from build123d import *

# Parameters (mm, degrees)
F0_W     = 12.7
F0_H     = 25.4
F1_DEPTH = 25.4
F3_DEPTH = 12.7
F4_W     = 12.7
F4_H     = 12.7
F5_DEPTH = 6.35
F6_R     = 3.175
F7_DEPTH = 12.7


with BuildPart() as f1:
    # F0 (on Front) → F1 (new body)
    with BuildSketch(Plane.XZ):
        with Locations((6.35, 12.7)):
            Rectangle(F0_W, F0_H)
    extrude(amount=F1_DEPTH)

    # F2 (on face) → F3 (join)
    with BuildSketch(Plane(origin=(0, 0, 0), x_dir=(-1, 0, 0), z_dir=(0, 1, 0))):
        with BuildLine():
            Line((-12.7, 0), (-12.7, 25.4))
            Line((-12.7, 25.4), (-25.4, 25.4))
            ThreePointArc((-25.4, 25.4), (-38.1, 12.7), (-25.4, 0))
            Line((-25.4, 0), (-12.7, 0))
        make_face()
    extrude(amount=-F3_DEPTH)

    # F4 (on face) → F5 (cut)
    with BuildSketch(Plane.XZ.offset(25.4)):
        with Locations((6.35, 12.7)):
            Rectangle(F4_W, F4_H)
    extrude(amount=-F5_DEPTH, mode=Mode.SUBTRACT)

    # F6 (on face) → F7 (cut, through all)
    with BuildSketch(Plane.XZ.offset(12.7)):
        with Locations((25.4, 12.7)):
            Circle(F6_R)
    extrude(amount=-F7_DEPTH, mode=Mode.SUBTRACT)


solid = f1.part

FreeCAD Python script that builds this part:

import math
import FreeCAD as App
import Part
import Sketcher
from FreeCAD import Vector
Q = App.Units.Quantity

doc = App.newDocument("Part")
params = doc.addObject("Spreadsheet::Sheet", "Params")
for row, (alias, value) in enumerate([
    ("sketch1_height", "1 in"),
    ("sketch1_width", "0.5 in"),
    ("pad1_length", "1 in"),
    ("sketch2_radius", "0.5 in"),
    ("sketch2_width", "0.5 in"),
    ("pad2_length", "0.5 in"),
    ("sketch3_width", "0.5 in"),
    ("pocket1_length", "0.25 in"),
    ("sketch4_diameter", "0.25 in"),
], start=1):
    params.set(f"A{row}", alias)
    params.set(f"B{row}", "=" + value)
    params.setAlias(f"B{row}", alias)

body = doc.addObject("PartDesign::Body", "Body")

sketch1 = body.newObject("Sketcher::SketchObject", "Sketch")
sketch1.AttachmentSupport = (doc.getObject("XZ_Plane"), [""])
sketch1.MapMode = "FlatFace"
sketch1.addGeometry([
    Part.LineSegment(Vector(0, 25, 0), Vector(0, 0, 0)),
    Part.LineSegment(Vector(0, 0, 0), Vector(13, 0, 0)),
    Part.LineSegment(Vector(13, 0, 0), Vector(13, 25, 0)),
    Part.LineSegment(Vector(13, 25, 0), Vector(0, 25, 0)),
], False)
sketch1.addConstraint([
    Sketcher.Constraint("Coincident", 0, 2, 1, 1),
    Sketcher.Constraint("Coincident", 1, 2, 2, 1),
    Sketcher.Constraint("Coincident", 2, 2, 3, 1),
    Sketcher.Constraint("Coincident", 3, 2, 0, 1),
    Sketcher.Constraint("Vertical", 0),
    Sketcher.Constraint("Horizontal", 1),
    Sketcher.Constraint("Vertical", 2),
    Sketcher.Constraint("Horizontal", 3),
    Sketcher.Constraint("Coincident", 0, 2, -1, 1),
    Sketcher.Constraint("DistanceY", 0, 2, 0, 1, Q("1 in")),
    Sketcher.Constraint("DistanceX", 1, 1, 1, 2, Q("0.5 in")),
])
sketch1.setExpression("Constraints[9]", "Params.sketch1_height")
sketch1.setExpression("Constraints[10]", "Params.sketch1_width")
pad1 = body.newObject("PartDesign::Pad", "Pad")
pad1.Profile = sketch1
pad1.setExpression("Length", "Params.pad1_length")

sketch2 = body.newObject("Sketcher::SketchObject", "Sketch001")
sketch2.AttachmentSupport = (doc.getObject("XZ_Plane"), [""])
sketch2.MapMode = "FlatFace"
sketch2.addGeometry([
    Part.LineSegment(Vector(13, 0, 0), Vector(13, 25, 0)),
    Part.LineSegment(Vector(13, 25, 0), Vector(25, 25, 0)),
    Part.ArcOfCircle(Part.Circle(Vector(25, 13, 0), Vector(0, 0, 1), 13), math.radians(-90), math.radians(90)),
    Part.LineSegment(Vector(25, 0, 0), Vector(13, 0, 0)),
], False)
sketch2.addConstraint([
    Sketcher.Constraint("Coincident", 0, 2, 1, 1),
    Sketcher.Constraint("Tangent", 1, 2, 2, 2),
    Sketcher.Constraint("Tangent", 2, 1, 3, 1),
    Sketcher.Constraint("Coincident", 3, 2, 0, 1),
    Sketcher.Constraint("Vertical", 0),
    Sketcher.Constraint("Horizontal", 1),
    Sketcher.Constraint("Horizontal", 3),
    Sketcher.Constraint("PointOnObject", 2, 1, -1),
    Sketcher.Constraint("Radius", 2, Q("0.5 in")),
    Sketcher.Constraint("DistanceX", 1, 1, 1, 2, Q("0.5 in")),
    Sketcher.Constraint("DistanceX", -1, 1, 2, 3, Q("1 in")),
])
sketch2.setExpression("Constraints[8]", "Params.sketch2_radius")
sketch2.setExpression("Constraints[9]", "Params.sketch2_width")
pad2 = body.newObject("PartDesign::Pad", "Pad001")
pad2.Profile = sketch2
pad2.setExpression("Length", "Params.pad2_length")

sketch3 = body.newObject("Sketcher::SketchObject", "Sketch002")
sketch3.AttachmentSupport = (doc.getObject("XZ_Plane"), [""])
sketch3.MapMode = "FlatFace"
sketch3.AttachmentOffset = App.Placement(Vector(0, 0, 1 * 25.4), App.Rotation())
sketch3.addGeometry([
    Part.LineSegment(Vector(0, 19, 0), Vector(0, 6, 0)),
    Part.LineSegment(Vector(0, 6, 0), Vector(13, 6, 0)),
    Part.LineSegment(Vector(13, 6, 0), Vector(13, 19, 0)),
    Part.LineSegment(Vector(13, 19, 0), Vector(0, 19, 0)),
], False)
sketch3.addConstraint([
    Sketcher.Constraint("Coincident", 0, 2, 1, 1),
    Sketcher.Constraint("Coincident", 1, 2, 2, 1),
    Sketcher.Constraint("Coincident", 2, 2, 3, 1),
    Sketcher.Constraint("Coincident", 3, 2, 0, 1),
    Sketcher.Constraint("Vertical", 0),
    Sketcher.Constraint("Horizontal", 1),
    Sketcher.Constraint("Vertical", 2),
    Sketcher.Constraint("Horizontal", 3),
    Sketcher.Constraint("PointOnObject", 0, 2, -2),
    Sketcher.Constraint("Equal", 3, 0),
    Sketcher.Constraint("DistanceX", 1, 1, 1, 2, Q("0.5 in")),
    Sketcher.Constraint("DistanceY", -1, 1, 0, 2, Q("0.25 in")),
])
sketch3.setExpression("Constraints[10]", "Params.sketch3_width")
pocket1 = body.newObject("PartDesign::Pocket", "Pocket")
pocket1.Profile = sketch3
pocket1.setExpression("Length", "Params.pocket1_length")

sketch4 = body.newObject("Sketcher::SketchObject", "Sketch003")
sketch4.AttachmentSupport = (doc.getObject("XZ_Plane"), [""])
sketch4.MapMode = "FlatFace"
sketch4.AttachmentOffset = App.Placement(Vector(0, 0, 0.5 * 25.4), App.Rotation())
sketch4.addGeometry(Part.Circle(Vector(25.4, 12.7, 0), Vector(0, 0, 1), 3.2), False)
sketch4.addConstraint([
    Sketcher.Constraint("Diameter", 0, Q("0.25 in")),
    Sketcher.Constraint("DistanceX", -1, 1, 0, 3, Q("1 in")),
    Sketcher.Constraint("DistanceY", -1, 1, 0, 3, Q("0.5 in")),
])
sketch4.setExpression("Constraints[0]", "Params.sketch4_diameter")
pocket2 = body.newObject("PartDesign::Pocket", "Pocket001")
pocket2.Profile = sketch4
pocket2.Type = "ThroughAll"

doc.recompute()
